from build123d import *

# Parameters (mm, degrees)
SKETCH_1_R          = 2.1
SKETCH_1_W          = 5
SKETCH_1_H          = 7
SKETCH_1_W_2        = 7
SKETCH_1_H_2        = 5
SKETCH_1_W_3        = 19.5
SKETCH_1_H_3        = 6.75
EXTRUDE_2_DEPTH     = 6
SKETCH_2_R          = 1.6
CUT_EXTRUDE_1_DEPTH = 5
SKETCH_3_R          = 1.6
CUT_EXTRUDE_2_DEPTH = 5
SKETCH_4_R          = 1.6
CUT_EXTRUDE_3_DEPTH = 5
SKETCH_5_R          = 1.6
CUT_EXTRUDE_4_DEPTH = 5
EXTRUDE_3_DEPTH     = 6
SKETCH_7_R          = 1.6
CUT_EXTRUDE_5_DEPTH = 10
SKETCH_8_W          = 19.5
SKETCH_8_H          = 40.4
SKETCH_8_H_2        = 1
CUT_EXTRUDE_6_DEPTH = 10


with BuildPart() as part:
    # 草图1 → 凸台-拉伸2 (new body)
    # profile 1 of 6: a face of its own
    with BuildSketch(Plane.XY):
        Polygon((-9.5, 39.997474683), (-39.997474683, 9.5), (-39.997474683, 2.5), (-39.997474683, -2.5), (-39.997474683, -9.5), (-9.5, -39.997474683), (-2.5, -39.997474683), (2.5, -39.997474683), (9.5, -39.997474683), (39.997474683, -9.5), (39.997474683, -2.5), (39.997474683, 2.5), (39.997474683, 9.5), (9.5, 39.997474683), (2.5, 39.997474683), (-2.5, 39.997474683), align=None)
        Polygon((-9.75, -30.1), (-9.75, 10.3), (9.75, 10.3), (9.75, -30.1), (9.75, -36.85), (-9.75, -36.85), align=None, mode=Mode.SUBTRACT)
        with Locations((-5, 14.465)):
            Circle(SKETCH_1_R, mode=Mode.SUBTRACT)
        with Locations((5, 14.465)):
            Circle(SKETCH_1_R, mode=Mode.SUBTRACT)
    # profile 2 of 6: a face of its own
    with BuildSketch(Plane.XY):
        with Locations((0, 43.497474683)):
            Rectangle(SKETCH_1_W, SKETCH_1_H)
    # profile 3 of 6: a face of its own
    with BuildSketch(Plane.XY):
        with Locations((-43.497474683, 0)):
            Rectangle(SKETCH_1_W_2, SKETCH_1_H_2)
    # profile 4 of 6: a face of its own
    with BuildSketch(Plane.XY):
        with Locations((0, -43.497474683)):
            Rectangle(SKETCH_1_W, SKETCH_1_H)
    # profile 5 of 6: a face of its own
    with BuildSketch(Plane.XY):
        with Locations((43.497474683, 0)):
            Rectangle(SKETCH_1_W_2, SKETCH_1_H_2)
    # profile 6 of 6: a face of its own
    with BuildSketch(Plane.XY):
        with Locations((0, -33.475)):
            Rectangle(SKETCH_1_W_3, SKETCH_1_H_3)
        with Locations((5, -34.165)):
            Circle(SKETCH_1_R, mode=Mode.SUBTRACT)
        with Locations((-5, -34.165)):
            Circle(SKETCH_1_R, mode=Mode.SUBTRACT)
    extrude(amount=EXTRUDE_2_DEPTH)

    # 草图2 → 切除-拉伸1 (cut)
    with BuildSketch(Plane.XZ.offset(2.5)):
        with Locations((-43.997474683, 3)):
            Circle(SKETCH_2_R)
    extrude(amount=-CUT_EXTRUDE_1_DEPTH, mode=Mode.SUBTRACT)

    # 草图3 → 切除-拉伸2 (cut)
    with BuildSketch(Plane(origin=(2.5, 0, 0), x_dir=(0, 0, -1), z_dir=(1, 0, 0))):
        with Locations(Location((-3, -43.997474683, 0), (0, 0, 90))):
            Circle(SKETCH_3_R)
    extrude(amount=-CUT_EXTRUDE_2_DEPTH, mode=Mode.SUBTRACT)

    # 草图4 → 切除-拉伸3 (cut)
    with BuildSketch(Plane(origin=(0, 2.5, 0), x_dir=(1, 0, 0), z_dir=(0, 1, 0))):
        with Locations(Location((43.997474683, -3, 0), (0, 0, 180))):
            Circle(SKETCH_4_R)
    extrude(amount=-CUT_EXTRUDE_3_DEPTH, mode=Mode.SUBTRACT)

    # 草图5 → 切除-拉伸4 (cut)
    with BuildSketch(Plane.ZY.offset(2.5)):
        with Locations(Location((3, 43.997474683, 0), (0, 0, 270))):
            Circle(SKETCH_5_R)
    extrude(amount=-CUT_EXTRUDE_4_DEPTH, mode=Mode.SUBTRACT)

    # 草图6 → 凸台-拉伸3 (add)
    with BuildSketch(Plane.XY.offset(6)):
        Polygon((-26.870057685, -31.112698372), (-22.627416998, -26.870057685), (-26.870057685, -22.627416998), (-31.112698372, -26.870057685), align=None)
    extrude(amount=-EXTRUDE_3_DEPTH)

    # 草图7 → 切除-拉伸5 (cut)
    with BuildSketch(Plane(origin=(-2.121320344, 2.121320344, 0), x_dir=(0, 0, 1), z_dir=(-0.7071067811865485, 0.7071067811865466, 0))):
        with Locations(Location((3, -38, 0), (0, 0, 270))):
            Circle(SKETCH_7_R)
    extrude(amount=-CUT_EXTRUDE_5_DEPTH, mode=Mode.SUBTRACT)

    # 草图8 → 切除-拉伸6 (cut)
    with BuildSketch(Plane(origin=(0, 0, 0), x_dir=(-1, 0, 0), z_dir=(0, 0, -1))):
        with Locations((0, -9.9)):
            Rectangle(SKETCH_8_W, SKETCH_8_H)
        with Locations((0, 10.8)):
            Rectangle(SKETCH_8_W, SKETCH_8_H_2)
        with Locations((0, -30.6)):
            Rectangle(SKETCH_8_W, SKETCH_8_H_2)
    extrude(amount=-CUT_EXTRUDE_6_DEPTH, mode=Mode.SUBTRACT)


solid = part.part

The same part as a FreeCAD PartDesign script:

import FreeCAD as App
import Part
import Sketcher
from FreeCAD import Vector


def add_polygon(sketch, points):
    """Adds a closed chain of lines whose ends are joined by coincident constraints."""
    first, n = sketch.GeometryCount, len(points)
    for a, b in zip(points, points[1:] + points[:1]):
        sketch.addGeometry(Part.LineSegment(App.Vector(*a, 0), App.Vector(*b, 0)), False)
    for i in range(n):
        sketch.addConstraint(Sketcher.Constraint("Coincident", first + i, 2, first + (i + 1) % n, 1))

doc = App.newDocument("Part")
params = doc.addObject("Spreadsheet::Sheet", "Params")
for row, (alias, value) in enumerate([
    ("sketch1_diameter", "4.2 mm"),
    ("sketch1_width", "7 mm"),
    ("sketch1_width2", "5 mm"),
    ("sketch1_width3", "19.5 mm"),
    ("sketch1_height", "40.4 mm"),
    ("pad1_length", "6 mm"),
    ("sketch2_diameter", "3.2 mm"),
    ("pocket1_length", "5 mm"),
    ("sketch3_diameter", "3.2 mm"),
    ("pocket2_length", "5 mm"),
    ("sketch4_diameter", "3.2 mm"),
    ("pocket3_length", "5 mm"),
    ("sketch5_diameter", "3.2 mm"),
    ("pocket4_length", "5 mm"),
    ("sketch6_length", "6 mm"),
    ("pad2_length", "6 mm"),
    ("sketch7_diameter", "3.2 mm"),
    ("pocket5_length", "10 mm"),
    ("sketch8_width", "19.5 mm"),
    ("sketch8_height", "42.4 mm"),
    ("pocket6_length", "10 mm"),
], start=1):
    params.set(f"A{row}", alias)
    params.set(f"B{row}", "=" + value)
    params.setAlias(f"B{row}", alias)

body = doc.addObject("PartDesign::Body", "Body")

# Sketch on XY plane
sketch1 = doc.addObject("Sketcher::SketchObject", "Sketch")
body.addObject(sketch1)
sketch1.AttachmentSupport = (doc.XY_Plane, [""])
sketch1.MapMode = "FlatFace"
add_polygon(sketch1, [(-9.5, 40), (-40, 9.5), (-40, 2.5), (-47, 2.5), (-47, -2.5), (-40, -2.5), (-40, -9.5), (-9.5, -40), (-2.5, -40), (-2.5, -47), (2.5, -47), (2.5, -40), (9.5, -40), (40, -9.5), (40, -2.5), (47, -2.5), (47, 2.5), (40, 2.5), (40, 9.5), (9.5, 40), (2.5, 40), (2.5, 47), (-2.5, 47), (-2.5, 40)])  # lines 0-23
add_polygon(sketch1, [(-9.8, -30.1), (-9.8, 10.3), (9.8, 10.3), (9.8, -30.1)])  # lines 24-27
sketch1.addGeometry(Part.Circle(Vector(-5, 14.5, 0), Vector(0, 0, 1), 2.1), False)  # 28
sketch1.addGeometry(Part.Circle(Vector(5, 14.5, 0), Vector(0, 0, 1), 2.1), False)  # 29
sketch1.addGeometry(Part.Circle(Vector(5, -34.2, 0), Vector(0, 0, 1), 2.1), False)  # 30
sketch1.addGeometry(Part.Circle(Vector(-5, -34.2, 0), Vector(0, 0, 1), 2.1), False)  # 31
sketch1.addConstraint([
    Sketcher.Constraint("Vertical", 1),
    Sketcher.Constraint("Horizontal", 2),
    Sketcher.Constraint("Vertical", 3),
    Sketcher.Constraint("Horizontal", 4),
    Sketcher.Constraint("Vertical", 5),
    Sketcher.Constraint("Horizontal", 7),
    Sketcher.Constraint("Vertical", 8),
    Sketcher.Constraint("Horizontal", 9),
    Sketcher.Constraint("Vertical", 10),
    Sketcher.Constraint("Horizontal", 11),
    Sketcher.Constraint("Vertical", 13),
    Sketcher.Constraint("Horizontal", 14),
    Sketcher.Constraint("Vertical", 15),
    Sketcher.Constraint("Horizontal", 16),
    Sketcher.Constraint("Vertical", 17),
    Sketcher.Constraint("Horizontal", 19),
    Sketcher.Constraint("Vertical", 20),
    Sketcher.Constraint("Horizontal", 21),
    Sketcher.Constraint("Vertical", 22),
    Sketcher.Constraint("Horizontal", 23),
    Sketcher.Constraint("Vertical", 24),
    Sketcher.Constraint("Horizontal", 25),
    Sketcher.Constraint("Vertical", 26),
    Sketcher.Constraint("Horizontal", 27),
    Sketcher.Constraint("Equal", 28, 29),
    Sketcher.Constraint("Equal", 29, 30),
    Sketcher.Constraint("Equal", 30, 31),
    Sketcher.Constraint("Symmetric", 0, 2, 12, 2, -1, 1),
    Sketcher.Constraint("Symmetric", 2, 2, 14, 2, -1, 1),
    Sketcher.Constraint("Symmetric", 4, 2, 16, 2, -1, 1),
    Sketcher.Constraint("Symmetric", 6, 2, 18, 2, -1, 1),
    Sketcher.Constraint("Symmetric", 8, 2, 20, 2, -1, 1),
    Sketcher.Constraint("Symmetric", 10, 2, 22, 2, -1, 1),
    Sketcher.Constraint("Symmetric", 28, 3, 29, 3, -2),
    Sketcher.Constraint("Symmetric", 30, 3, 31, 3, -2),
    Sketcher.Constraint("Symmetric", 7, 2, 10, 2, -2),
    Sketcher.Constraint("Symmetric", 5, 2, 12, 2, -2),
    Sketcher.Constraint("Perpendicular", 0, 6),
    Sketcher.Constraint("Perpendicular", 6, 12),
    Sketcher.Constraint("Perpendicular", 12, 18),
    Sketcher.Constraint("Horizontal", 4, 2, 13, 2),
    Sketcher.Constraint("Vertical", 29, 3, 30, 3),
    Sketcher.Constraint("Vertical", 11, 2, 18, 2),
    Sketcher.Constraint("Equal", 4, 7),
    Sketcher.Constraint("Equal", 23, 1),
    Sketcher.Constraint("Equal", 21, 3),
    Sketcher.Constraint("Equal", 5, 8),
    Sketcher.Constraint("Diameter", 28, 4.2),
    Sketcher.Constraint("DistanceX", 2, 2, 2, 1, 7.0),
    Sketcher.Constraint("DistanceX", 9, 1, 9, 2, 5.0),
    Sketcher.Constraint("DistanceX", 25, 1, 25, 2, 19.5),
    Sketcher.Constraint("DistanceY", 24, 1, 24, 2, 40.4),
    Sketcher.Constraint("DistanceX", 28, 3, -1, 1, 5.0),
    Sketcher.Constraint("DistanceY", -1, 1, 24, 2, 10.3),
    Sketcher.Constraint("DistanceX", 24, 2, -1, 1, 9.75),
    Sketcher.Constraint("DistanceY", 30, 3, 29, 3, 48.63),
    Sketcher.Constraint("DistanceY", -1, 1, 28, 3, 14.465),
    Sketcher.Constraint("Distance", 0, 43.129942),
])
sketch1.setExpression("Constraints[75]", "Params.sketch1_diameter")
sketch1.setExpression("Constraints[76]", "Params.sketch1_width")
sketch1.setExpression("Constraints[77]", "Params.sketch1_width2")
sketch1.setExpression("Constraints[78]", "Params.sketch1_width3")
sketch1.setExpression("Constraints[79]", "Params.sketch1_height")
pad1 = doc.addObject("PartDesign::Pad", "Pad")
body.addObject(pad1)
pad1.Profile = sketch1
pad1.setExpression("Length", "Params.pad1_length")

# Sketch on XZ plane
sketch2 = doc.addObject("Sketcher::SketchObject", "Sketch001")
body.addObject(sketch2)
sketch2.AttachmentSupport = (doc.XZ_Plane, [""])
sketch2.MapMode = "FlatFace"
sketch2.AttachmentOffset = App.Placement(Vector(0, 0, 2.5), App.Rotation())
sketch2.addGeometry(Part.Circle(Vector(-44, 3, 0), Vector(0, 0, 1), 1.6), False)
sketch2.addConstraint([
    Sketcher.Constraint("Diameter", 0, 3.2),
    Sketcher.Constraint("DistanceY", -1, 1, 0, 3, 3.0),
    Sketcher.Constraint("DistanceX", 0, 3, -1, 1, 43.997475),
])
sketch2.setExpression("Constraints[0]", "Params.sketch2_diameter")
pocket1 = doc.addObject("PartDesign::Pocket", "Pocket")
body.addObject(pocket1)
pocket1.Profile = sketch2
pocket1.setExpression("Length", "Params.pocket1_length")

# Sketch on YZ plane
sketch3 = doc.addObject("Sketcher::SketchObject", "Sketch002")
body.addObject(sketch3)
sketch3.AttachmentSupport = (doc.YZ_Plane, [""])
sketch3.MapMode = "FlatFace"
sketch3.AttachmentOffset = App.Placement(Vector(0, 0, 2.5), App.Rotation())
sketch3.addGeometry(Part.Circle(Vector(-44, 3, 0), Vector(0, 0, 1), 1.6), False)
sketch3.addConstraint([
    Sketcher.Constraint("Diameter", 0, 3.2),
    Sketcher.Constraint("DistanceY", -1, 1, 0, 3, 3.0),
    Sketcher.Constraint("DistanceX", 0, 3, -1, 1, 43.997475),
])
sketch3.setExpression("Constraints[0]", "Params.sketch3_diameter")
pocket2 = doc.addObject("PartDesign::Pocket", "Pocket001")
body.addObject(pocket2)
pocket2.Profile = sketch3
pocket2.setExpression("Length", "Params.pocket2_length")

# Sketch on XZ plane
sketch4 = doc.addObject("Sketcher::SketchObject", "Sketch003")
body.addObject(sketch4)
sketch4.AttachmentSupport = (doc.XZ_Plane, [""])
sketch4.MapMode = "FlatFace"
sketch4.AttachmentOffset = App.Placement(Vector(0, 0, -2.5), App.Rotation())
sketch4.addGeometry(Part.Circle(Vector(44, 3, 0), Vector(0, 0, 1), 1.6), False)
sketch4.addConstraint([
    Sketcher.Constraint("Diameter", 0, 3.2),
    Sketcher.Constraint("DistanceY", -1, 1, 0, 3, 3.0),
    Sketcher.Constraint("DistanceX", -1, 1, 0, 3, 43.997475),
])
sketch4.setExpression("Constraints[0]", "Params.sketch4_diameter")
pocket3 = doc.addObject("PartDesign::Pocket", "Pocket002")
body.addObject(pocket3)
pocket3.Profile = sketch4
pocket3.setExpression("Length", "Params.pocket3_length")
pocket3.Reversed = True

# Sketch on YZ plane
sketch5 = doc.addObject("Sketcher::SketchObject", "Sketch004")
body.addObject(sketch5)
sketch5.AttachmentSupport = (doc.YZ_Plane, [""])
sketch5.MapMode = "FlatFace"
sketch5.AttachmentOffset = App.Placement(Vector(0, 0, -2.5), App.Rotation())
sketch5.addGeometry(Part.Circle(Vector(44, 3, 0), Vector(0, 0, 1), 1.6), False)
sketch5.addConstraint([
    Sketcher.Constraint("Diameter", 0, 3.2),
    Sketcher.Constraint("DistanceY", -1, 1, 0, 3, 3.0),
    Sketcher.Constraint("DistanceX", -1, 1, 0, 3, 43.997475),
])
sketch5.setExpression("Constraints[0]", "Params.sketch5_diameter")
pocket4 = doc.addObject("PartDesign::Pocket", "Pocket003")
body.addObject(pocket4)
pocket4.Profile = sketch5
pocket4.setExpression("Length", "Params.pocket4_length")
pocket4.Reversed = True

# Sketch on XY plane
sketch6 = doc.addObject("Sketcher::SketchObject", "Sketch005")
body.addObject(sketch6)
sketch6.AttachmentSupport = (doc.XY_Plane, [""])
sketch6.MapMode = "FlatFace"
sketch6.AttachmentOffset = App.Placement(Vector(0, 0, 6), App.Rotation())
add_polygon(sketch6, [(-27, -31), (-23, -27), (-27, -23), (-31, -27)])  # lines 0-3
sketch6.addConstraint([
    Sketcher.Constraint("Perpendicular", 0, 1),
    Sketcher.Constraint("Perpendicular", 1, 2),
    Sketcher.Constraint("Perpendicular", 2, 3),
    Sketcher.Constraint("Horizontal", 0, 2, 2, 2),
    Sketcher.Constraint("Vertical", 1, 2, 3, 2),
    Sketcher.Constraint("Distance", 0, 6.0),
    Sketcher.Constraint("DistanceX", 2, 2, -1, 1, 31.112698),
    Sketcher.Constraint("DistanceY", 3, 2, -1, 1, 31.112698),
])
sketch6.setExpression("Constraints[9]", "Params.sketch6_length")
pad2 = doc.addObject("PartDesign::Pad", "Pad001")
body.addObject(pad2)
pad2.Profile = sketch6
pad2.setExpression("Length", "Params.pad2_length")
pad2.Reversed = True

# Sketch on an angled plane
sketch7 = doc.addObject("Sketcher::SketchObject", "Sketch006")
body.addObject(sketch7)
sketch7.Placement = App.Placement(Vector(-2.12132, 2.12132, 0), App.Rotation(Vector(0, 0, 1), Vector(0.707106781, 0.707106781, 0), Vector(-0.707106781, 0.707106781, 0), "ZXY"))
sketch7.addGeometry(Part.Circle(Vector(3, -38, 0), Vector(0, 0, 1), 1.6), False)
sketch7.addConstraint([
    Sketcher.Constraint("Diameter", 0, 3.2),
    Sketcher.Constraint("DistanceX", -1, 1, 0, 3, 3.0),
    Sketcher.Constraint("DistanceY", 0, 3, -1, 1, 38.0),
])
sketch7.setExpression("Constraints[0]", "Params.sketch7_diameter")
pocket5 = doc.addObject("PartDesign::Pocket", "Pocket004")
body.addObject(pocket5)
pocket5.Profile = sketch7
pocket5.setExpression("Length", "Params.pocket5_length")

# Sketch on XY plane
sketch8 = doc.addObject("Sketcher::SketchObject", "Sketch007")
body.addObject(sketch8)
sketch8.AttachmentSupport = (doc.XY_Plane, [""])
sketch8.MapMode = "FlatFace"
add_polygon(sketch8, [(-10, 11), (10, 11), (10, -31), (-10, -31)])  # lines 0-3
sketch8.addConstraint([
    Sketcher.Constraint("Horizontal", 0),
    Sketcher.Constraint("Vertical", 1),
    Sketcher.Constraint("Horizontal", 2),
    Sketcher.Constraint("Vertical", 3),
    Sketcher.Constraint("DistanceX", 0, 1, 0, 2, 19.5),
    Sketcher.Constraint("DistanceY", 1, 2, 1, 1, 42.4),
    Sketcher.Constraint("DistanceY", -1, 1, 0, 2, 11.3),
    Sketcher.Constraint("DistanceX", -1, 1, 0, 2, 9.75),
])
sketch8.setExpression("Constraints[8]", "Params.sketch8_width")
sketch8.setExpression("Constraints[9]", "Params.sketch8_height")
pocket6 = doc.addObject("PartDesign::Pocket", "Pocket005")
body.addObject(pocket6)
pocket6.Profile = sketch8
pocket6.setExpression("Length", "Params.pocket6_length")
pocket6.Reversed = True

doc.recompute()
